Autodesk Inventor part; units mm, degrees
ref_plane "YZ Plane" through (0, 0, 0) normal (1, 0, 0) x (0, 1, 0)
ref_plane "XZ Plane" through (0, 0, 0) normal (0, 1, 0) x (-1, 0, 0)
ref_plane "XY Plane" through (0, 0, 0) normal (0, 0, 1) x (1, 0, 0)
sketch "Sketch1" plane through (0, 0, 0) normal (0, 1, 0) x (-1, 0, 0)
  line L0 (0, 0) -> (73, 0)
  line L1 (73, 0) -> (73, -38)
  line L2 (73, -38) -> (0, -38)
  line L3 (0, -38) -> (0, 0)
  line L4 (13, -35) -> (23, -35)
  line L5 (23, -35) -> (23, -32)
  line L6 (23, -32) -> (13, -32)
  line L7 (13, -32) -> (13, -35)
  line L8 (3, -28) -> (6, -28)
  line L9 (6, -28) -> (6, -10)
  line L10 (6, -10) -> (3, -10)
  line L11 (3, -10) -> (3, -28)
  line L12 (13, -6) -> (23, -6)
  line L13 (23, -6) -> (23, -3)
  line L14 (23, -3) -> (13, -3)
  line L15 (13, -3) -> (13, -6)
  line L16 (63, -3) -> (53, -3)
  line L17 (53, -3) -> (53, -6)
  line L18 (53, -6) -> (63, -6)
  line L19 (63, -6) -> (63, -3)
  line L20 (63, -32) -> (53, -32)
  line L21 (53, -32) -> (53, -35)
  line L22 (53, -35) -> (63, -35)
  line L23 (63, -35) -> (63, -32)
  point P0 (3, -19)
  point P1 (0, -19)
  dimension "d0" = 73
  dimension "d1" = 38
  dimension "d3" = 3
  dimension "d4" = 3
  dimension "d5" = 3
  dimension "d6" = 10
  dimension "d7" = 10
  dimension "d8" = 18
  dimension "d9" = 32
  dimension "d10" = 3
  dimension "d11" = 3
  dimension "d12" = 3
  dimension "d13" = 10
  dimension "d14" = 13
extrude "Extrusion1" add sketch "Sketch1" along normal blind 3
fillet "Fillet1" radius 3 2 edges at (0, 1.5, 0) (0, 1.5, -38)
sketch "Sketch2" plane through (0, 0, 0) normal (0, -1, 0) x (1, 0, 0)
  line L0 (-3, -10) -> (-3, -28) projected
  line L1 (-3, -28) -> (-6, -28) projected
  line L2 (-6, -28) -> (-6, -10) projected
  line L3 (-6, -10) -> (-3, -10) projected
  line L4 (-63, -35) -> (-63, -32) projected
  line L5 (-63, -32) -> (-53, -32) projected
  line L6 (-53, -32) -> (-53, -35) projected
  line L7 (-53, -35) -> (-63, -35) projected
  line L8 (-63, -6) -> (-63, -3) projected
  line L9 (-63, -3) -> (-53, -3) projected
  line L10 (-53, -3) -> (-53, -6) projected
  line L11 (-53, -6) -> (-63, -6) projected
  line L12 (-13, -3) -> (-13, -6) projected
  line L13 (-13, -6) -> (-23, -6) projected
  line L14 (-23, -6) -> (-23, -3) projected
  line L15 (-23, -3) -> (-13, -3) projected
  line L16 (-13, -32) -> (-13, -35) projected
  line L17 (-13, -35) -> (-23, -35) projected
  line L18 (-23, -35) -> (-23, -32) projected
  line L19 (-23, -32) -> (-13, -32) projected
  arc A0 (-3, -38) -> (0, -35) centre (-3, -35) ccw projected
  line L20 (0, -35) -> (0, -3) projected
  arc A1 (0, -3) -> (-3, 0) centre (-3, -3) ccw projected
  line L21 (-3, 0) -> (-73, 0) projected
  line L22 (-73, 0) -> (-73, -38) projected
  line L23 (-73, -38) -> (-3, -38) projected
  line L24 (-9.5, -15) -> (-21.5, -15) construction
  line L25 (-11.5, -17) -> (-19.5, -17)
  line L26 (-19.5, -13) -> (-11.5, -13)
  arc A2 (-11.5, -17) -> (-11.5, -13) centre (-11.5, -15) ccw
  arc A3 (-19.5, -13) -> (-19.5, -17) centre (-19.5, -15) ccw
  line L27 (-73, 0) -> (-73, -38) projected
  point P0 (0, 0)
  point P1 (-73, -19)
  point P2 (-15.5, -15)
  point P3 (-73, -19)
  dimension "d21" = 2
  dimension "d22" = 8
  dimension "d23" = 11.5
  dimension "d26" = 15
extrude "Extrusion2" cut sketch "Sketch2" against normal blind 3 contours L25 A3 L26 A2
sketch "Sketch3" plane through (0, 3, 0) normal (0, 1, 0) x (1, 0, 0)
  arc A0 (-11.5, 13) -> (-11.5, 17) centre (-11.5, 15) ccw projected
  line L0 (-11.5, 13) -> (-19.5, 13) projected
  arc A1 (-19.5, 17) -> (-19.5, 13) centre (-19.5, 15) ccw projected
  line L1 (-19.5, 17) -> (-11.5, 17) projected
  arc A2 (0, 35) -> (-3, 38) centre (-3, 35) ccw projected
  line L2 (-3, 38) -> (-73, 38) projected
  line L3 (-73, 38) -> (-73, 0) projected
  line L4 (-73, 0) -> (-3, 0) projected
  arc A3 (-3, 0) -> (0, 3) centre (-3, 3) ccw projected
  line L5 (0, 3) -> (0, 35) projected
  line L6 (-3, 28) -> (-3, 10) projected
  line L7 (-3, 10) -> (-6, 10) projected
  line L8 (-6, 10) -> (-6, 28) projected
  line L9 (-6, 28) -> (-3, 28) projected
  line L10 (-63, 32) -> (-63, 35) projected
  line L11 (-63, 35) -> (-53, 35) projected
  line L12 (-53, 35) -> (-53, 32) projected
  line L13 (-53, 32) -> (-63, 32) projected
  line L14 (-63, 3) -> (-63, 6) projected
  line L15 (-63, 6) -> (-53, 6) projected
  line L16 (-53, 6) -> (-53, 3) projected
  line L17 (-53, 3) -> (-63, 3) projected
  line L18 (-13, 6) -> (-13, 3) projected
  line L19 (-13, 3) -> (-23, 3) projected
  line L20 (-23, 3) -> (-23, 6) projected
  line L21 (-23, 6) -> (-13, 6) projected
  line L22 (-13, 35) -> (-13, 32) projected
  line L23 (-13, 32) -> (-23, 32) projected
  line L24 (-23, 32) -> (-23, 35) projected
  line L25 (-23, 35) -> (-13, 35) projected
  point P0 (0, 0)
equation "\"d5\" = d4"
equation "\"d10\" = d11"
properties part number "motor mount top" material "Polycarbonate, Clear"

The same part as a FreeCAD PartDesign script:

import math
import FreeCAD as App
import Part
import Sketcher


def edges_at(feature, points):
    """Names of the edges that pass closest to the given points."""
    edges = feature.Shape.Edges
    near = lambda p: min(range(len(edges)), key=lambda i: edges[i].distToShape(Part.Vertex(*p))[0])
    return sorted({f"Edge{near(p) + 1}" for p in points})

doc = App.newDocument("Part")
body = doc.addObject("PartDesign::Body", "Body")

# Sketch on XZ plane
sketch1 = doc.addObject("Sketcher::SketchObject", "Sketch")
body.addObject(sketch1)
sketch1.AttachmentSupport = (doc.XZ_Plane, [""])
sketch1.MapMode = "FlatFace"
sketch1.addGeometry(Part.LineSegment(App.Vector(-73, 0, 0), App.Vector(0, 0, 0)), False)
sketch1.addGeometry(Part.LineSegment(App.Vector(0, 0, 0), App.Vector(0, -38, 0)), False)
sketch1.addGeometry(Part.LineSegment(App.Vector(0, -38, 0), App.Vector(-73, -38, 0)), False)
sketch1.addGeometry(Part.LineSegment(App.Vector(-73, -38, 0), App.Vector(-73, 0, 0)), False)
sketch1.addGeometry(Part.LineSegment(App.Vector(-23, -35, 0), App.Vector(-13, -35, 0)), False)
sketch1.addGeometry(Part.LineSegment(App.Vector(-13, -35, 0), App.Vector(-13, -32, 0)), False)
sketch1.addGeometry(Part.LineSegment(App.Vector(-13, -32, 0), App.Vector(-23, -32, 0)), False)
sketch1.addGeometry(Part.LineSegment(App.Vector(-23, -32, 0), App.Vector(-23, -35, 0)), False)
sketch1.addGeometry(Part.LineSegment(App.Vector(-53, -32, 0), App.Vector(-63, -32, 0)), False)
sketch1.addGeometry(Part.LineSegment(App.Vector(-63, -32, 0), App.Vector(-63, -35, 0)), False)
sketch1.addGeometry(Part.LineSegment(App.Vector(-63, -35, 0), App.Vector(-53, -35, 0)), False)
sketch1.addGeometry(Part.LineSegment(App.Vector(-53, -35, 0), App.Vector(-53, -32, 0)), False)
sketch1.addGeometry(Part.LineSegment(App.Vector(-6, -28, 0), App.Vector(-3, -28, 0)), False)
sketch1.addGeometry(Part.LineSegment(App.Vector(-3, -28, 0), App.Vector(-3, -10, 0)), False)
sketch1.addGeometry(Part.LineSegment(App.Vector(-3, -10, 0), App.Vector(-6, -10, 0)), False)
sketch1.addGeometry(Part.LineSegment(App.Vector(-6, -10, 0), App.Vector(-6, -28, 0)), False)
sketch1.addGeometry(Part.LineSegment(App.Vector(-23, -6, 0), App.Vector(-13, -6, 0)), False)
sketch1.addGeometry(Part.LineSegment(App.Vector(-13, -6, 0), App.Vector(-13, -3, 0)), False)
sketch1.addGeometry(Part.LineSegment(App.Vector(-13, -3, 0), App.Vector(-23, -3, 0)), False)
sketch1.addGeometry(Part.LineSegment(App.Vector(-23, -3, 0), App.Vector(-23, -6, 0)), False)
sketch1.addGeometry(Part.LineSegment(App.Vector(-53, -3, 0), App.Vector(-63, -3, 0)), False)
sketch1.addGeometry(Part.LineSegment(App.Vector(-63, -3, 0), App.Vector(-63, -6, 0)), False)
sketch1.addGeometry(Part.LineSegment(App.Vector(-63, -6, 0), App.Vector(-53, -6, 0)), False)
sketch1.addGeometry(Part.LineSegment(App.Vector(-53, -6, 0), App.Vector(-53, -3, 0)), False)
sketch1.addConstraint(Sketcher.Constraint("Coincident", 0, 2, 1, 1))
sketch1.addConstraint(Sketcher.Constraint("Coincident", 1, 2, 2, 1))
sketch1.addConstraint(Sketcher.Constraint("Coincident", 2, 2, 3, 1))
sketch1.addConstraint(Sketcher.Constraint("Coincident", 3, 2, 0, 1))
sketch1.addConstraint(Sketcher.Constraint("Coincident", 4, 2, 5, 1))
sketch1.addConstraint(Sketcher.Constraint("Coincident", 5, 2, 6, 1))
sketch1.addConstraint(Sketcher.Constraint("Coincident", 6, 2, 7, 1))
sketch1.addConstraint(Sketcher.Constraint("Coincident", 7, 2, 4, 1))
sketch1.addConstraint(Sketcher.Constraint("Coincident", 8, 2, 9, 1))
sketch1.addConstraint(Sketcher.Constraint("Coincident", 9, 2, 10, 1))
sketch1.addConstraint(Sketcher.Constraint("Coincident", 10, 2, 11, 1))
sketch1.addConstraint(Sketcher.Constraint("Coincident", 11, 2, 8, 1))
sketch1.addConstraint(Sketcher.Constraint("Coincident", 12, 2, 13, 1))
sketch1.addConstraint(Sketcher.Constraint("Coincident", 13, 2, 14, 1))
sketch1.addConstraint(Sketcher.Constraint("Coincident", 14, 2, 15, 1))
sketch1.addConstraint(Sketcher.Constraint("Coincident", 15, 2, 12, 1))
sketch1.addConstraint(Sketcher.Constraint("Coincident", 16, 2, 17, 1))
sketch1.addConstraint(Sketcher.Constraint("Coincident", 17, 2, 18, 1))
sketch1.addConstraint(Sketcher.Constraint("Coincident", 18, 2, 19, 1))
sketch1.addConstraint(Sketcher.Constraint("Coincident", 19, 2, 16, 1))
sketch1.addConstraint(Sketcher.Constraint("Coincident", 20, 2, 21, 1))
sketch1.addConstraint(Sketcher.Constraint("Coincident", 21, 2, 22, 1))
sketch1.addConstraint(Sketcher.Constraint("Coincident", 22, 2, 23, 1))
sketch1.addConstraint(Sketcher.Constraint("Coincident", 23, 2, 20, 1))
sketch1.addConstraint(Sketcher.Constraint("Horizontal", 0))
sketch1.addConstraint(Sketcher.Constraint("Vertical", 1))
sketch1.addConstraint(Sketcher.Constraint("Horizontal", 2))
sketch1.addConstraint(Sketcher.Constraint("Vertical", 3))
sketch1.addConstraint(Sketcher.Constraint("Horizontal", 4))
sketch1.addConstraint(Sketcher.Constraint("Vertical", 5))
sketch1.addConstraint(Sketcher.Constraint("Horizontal", 6))
sketch1.addConstraint(Sketcher.Constraint("Vertical", 7))
sketch1.addConstraint(Sketcher.Constraint("Horizontal", 8))
sketch1.addConstraint(Sketcher.Constraint("Vertical", 9))
sketch1.addConstraint(Sketcher.Constraint("Horizontal", 10))
sketch1.addConstraint(Sketcher.Constraint("Vertical", 11))
sketch1.addConstraint(Sketcher.Constraint("Horizontal", 12))
sketch1.addConstraint(Sketcher.Constraint("Vertical", 13))
sketch1.addConstraint(Sketcher.Constraint("Horizontal", 14))
sketch1.addConstraint(Sketcher.Constraint("Vertical", 15))
sketch1.addConstraint(Sketcher.Constraint("Horizontal", 16))
sketch1.addConstraint(Sketcher.Constraint("Vertical", 17))
sketch1.addConstraint(Sketcher.Constraint("Horizontal", 18))
sketch1.addConstraint(Sketcher.Constraint("Vertical", 19))
sketch1.addConstraint(Sketcher.Constraint("Horizontal", 20))
sketch1.addConstraint(Sketcher.Constraint("Vertical", 21))
sketch1.addConstraint(Sketcher.Constraint("Horizontal", 22))
sketch1.addConstraint(Sketcher.Constraint("Vertical", 23))
sketch1.addConstraint(Sketcher.Constraint("Coincident", 0, 2, -1, 1))
sketch1.addConstraint(Sketcher.Constraint("Horizontal", 6, 2, 8, 2))
sketch1.addConstraint(Sketcher.Constraint("Horizontal", 7, 2, 9, 2))
sketch1.addConstraint(Sketcher.Constraint("Horizontal", 18, 2, 20, 2))
sketch1.addConstraint(Sketcher.Constraint("Horizontal", 19, 2, 21, 2))
sketch1.addConstraint(Sketcher.Constraint("Vertical", 5, 2, 16, 2))
sketch1.addConstraint(Sketcher.Constraint("Vertical", 7, 2, 18, 2))
sketch1.addConstraint(Sketcher.Constraint("Vertical", 9, 2, 20, 2))
sketch1.addConstraint(Sketcher.Constraint("Vertical", 11, 2, 22, 2))
sketch1.addConstraint(Sketcher.Constraint("Equal", 6, 8))
sketch1.addConstraint(Sketcher.Constraint("Equal", 14, 5))
sketch1.addConstraint(Sketcher.Constraint("Equal", 11, 17))
sketch1.addConstraint(Sketcher.Constraint("DistanceX", 0, 1, 0, 2, 73.0))
sketch1.addConstraint(Sketcher.Constraint("DistanceX", 4, 1, 4, 2, 10.0))
sketch1.addConstraint(Sketcher.Constraint("DistanceX", 12, 1, 12, 2, 3.0))
sketch1.addConstraint(Sketcher.Constraint("DistanceY", 1, 2, 1, 1, 38.0))
sketch1.addConstraint(Sketcher.Constraint("DistanceY", 13, 1, 13, 2, 18.0))
sketch1.addConstraint(Sketcher.Constraint("DistanceX", 4, 2, -1, 1, 13.0))
sketch1.addConstraint(Sketcher.Constraint("DistanceY", 5, 2, -1, 1, 32.0))
sketch1.addConstraint(Sketcher.Constraint("DistanceX", 12, 2, -1, 1, 3.0))
sketch1.addConstraint(Sketcher.Constraint("DistanceY", 13, 2, -1, 1, 10.0))
sketch1.addConstraint(Sketcher.Constraint("DistanceY", 17, 2, -1, 1, 3.0))
sketch1.addConstraint(Sketcher.Constraint("DistanceX", 2, 2, 8, 2, 10.0))
pad1 = doc.addObject("PartDesign::Pad", "Pad")
body.addObject(pad1)
pad1.Profile = sketch1
pad1.Length = 3
pad1.Reversed = True
doc.recompute()

fillet = doc.addObject("PartDesign::Fillet", "Fillet")
body.addObject(fillet)
fillet.Base = (pad1, edges_at(pad1, [(0, 1.5, 0), (0, 1.5, -38)]))
fillet.Radius = 3

# Sketch on XZ plane
sketch2 = doc.addObject("Sketcher::SketchObject", "Sketch001")
body.addObject(sketch2)
sketch2.AttachmentSupport = (doc.XZ_Plane, [""])
sketch2.MapMode = "FlatFace"
sketch2.addGeometry(Part.LineSegment(App.Vector(-19.5, -17, 0), App.Vector(-11.5, -17, 0)), False)
sketch2.addGeometry(Part.ArcOfCircle(Part.Circle(App.Vector(-11.5, -15, 0), App.Vector(0, 0, 1), 2), math.radians(-90), math.radians(90)), False)
sketch2.addGeometry(Part.LineSegment(App.Vector(-11.5, -13, 0), App.Vector(-19.5, -13, 0)), False)
sketch2.addGeometry(Part.ArcOfCircle(Part.Circle(App.Vector(-19.5, -15, 0), App.Vector(0, 0, 1), 2), math.radians(90), math.radians(270)), False)
sketch2.addConstraint(Sketcher.Constraint("Tangent", 0, 2, 1, 1))
sketch2.addConstraint(Sketcher.Constraint("Tangent", 1, 2, 2, 1))
sketch2.addConstraint(Sketcher.Constraint("Tangent", 2, 2, 3, 1))
sketch2.addConstraint(Sketcher.Constraint("Tangent", 3, 2, 0, 1))
sketch2.addConstraint(Sketcher.Constraint("Horizontal", 0))
sketch2.addConstraint(Sketcher.Constraint("Horizontal", 2))
sketch2.addConstraint(Sketcher.Constraint("Radius", 1, 2.0))
sketch2.addConstraint(Sketcher.Constraint("DistanceX", 0, 1, 0, 2, 8.0))
sketch2.addConstraint(Sketcher.Constraint("DistanceY", 1, 3, -1, 1, 15.0))
sketch2.addConstraint(Sketcher.Constraint("DistanceX", 1, 3, -1, 1, 11.5))
pocket1 = doc.addObject("PartDesign::Pocket", "Pocket")
body.addObject(pocket1)
pocket1.Profile = sketch2
pocket1.Length = 3

doc.recompute()
